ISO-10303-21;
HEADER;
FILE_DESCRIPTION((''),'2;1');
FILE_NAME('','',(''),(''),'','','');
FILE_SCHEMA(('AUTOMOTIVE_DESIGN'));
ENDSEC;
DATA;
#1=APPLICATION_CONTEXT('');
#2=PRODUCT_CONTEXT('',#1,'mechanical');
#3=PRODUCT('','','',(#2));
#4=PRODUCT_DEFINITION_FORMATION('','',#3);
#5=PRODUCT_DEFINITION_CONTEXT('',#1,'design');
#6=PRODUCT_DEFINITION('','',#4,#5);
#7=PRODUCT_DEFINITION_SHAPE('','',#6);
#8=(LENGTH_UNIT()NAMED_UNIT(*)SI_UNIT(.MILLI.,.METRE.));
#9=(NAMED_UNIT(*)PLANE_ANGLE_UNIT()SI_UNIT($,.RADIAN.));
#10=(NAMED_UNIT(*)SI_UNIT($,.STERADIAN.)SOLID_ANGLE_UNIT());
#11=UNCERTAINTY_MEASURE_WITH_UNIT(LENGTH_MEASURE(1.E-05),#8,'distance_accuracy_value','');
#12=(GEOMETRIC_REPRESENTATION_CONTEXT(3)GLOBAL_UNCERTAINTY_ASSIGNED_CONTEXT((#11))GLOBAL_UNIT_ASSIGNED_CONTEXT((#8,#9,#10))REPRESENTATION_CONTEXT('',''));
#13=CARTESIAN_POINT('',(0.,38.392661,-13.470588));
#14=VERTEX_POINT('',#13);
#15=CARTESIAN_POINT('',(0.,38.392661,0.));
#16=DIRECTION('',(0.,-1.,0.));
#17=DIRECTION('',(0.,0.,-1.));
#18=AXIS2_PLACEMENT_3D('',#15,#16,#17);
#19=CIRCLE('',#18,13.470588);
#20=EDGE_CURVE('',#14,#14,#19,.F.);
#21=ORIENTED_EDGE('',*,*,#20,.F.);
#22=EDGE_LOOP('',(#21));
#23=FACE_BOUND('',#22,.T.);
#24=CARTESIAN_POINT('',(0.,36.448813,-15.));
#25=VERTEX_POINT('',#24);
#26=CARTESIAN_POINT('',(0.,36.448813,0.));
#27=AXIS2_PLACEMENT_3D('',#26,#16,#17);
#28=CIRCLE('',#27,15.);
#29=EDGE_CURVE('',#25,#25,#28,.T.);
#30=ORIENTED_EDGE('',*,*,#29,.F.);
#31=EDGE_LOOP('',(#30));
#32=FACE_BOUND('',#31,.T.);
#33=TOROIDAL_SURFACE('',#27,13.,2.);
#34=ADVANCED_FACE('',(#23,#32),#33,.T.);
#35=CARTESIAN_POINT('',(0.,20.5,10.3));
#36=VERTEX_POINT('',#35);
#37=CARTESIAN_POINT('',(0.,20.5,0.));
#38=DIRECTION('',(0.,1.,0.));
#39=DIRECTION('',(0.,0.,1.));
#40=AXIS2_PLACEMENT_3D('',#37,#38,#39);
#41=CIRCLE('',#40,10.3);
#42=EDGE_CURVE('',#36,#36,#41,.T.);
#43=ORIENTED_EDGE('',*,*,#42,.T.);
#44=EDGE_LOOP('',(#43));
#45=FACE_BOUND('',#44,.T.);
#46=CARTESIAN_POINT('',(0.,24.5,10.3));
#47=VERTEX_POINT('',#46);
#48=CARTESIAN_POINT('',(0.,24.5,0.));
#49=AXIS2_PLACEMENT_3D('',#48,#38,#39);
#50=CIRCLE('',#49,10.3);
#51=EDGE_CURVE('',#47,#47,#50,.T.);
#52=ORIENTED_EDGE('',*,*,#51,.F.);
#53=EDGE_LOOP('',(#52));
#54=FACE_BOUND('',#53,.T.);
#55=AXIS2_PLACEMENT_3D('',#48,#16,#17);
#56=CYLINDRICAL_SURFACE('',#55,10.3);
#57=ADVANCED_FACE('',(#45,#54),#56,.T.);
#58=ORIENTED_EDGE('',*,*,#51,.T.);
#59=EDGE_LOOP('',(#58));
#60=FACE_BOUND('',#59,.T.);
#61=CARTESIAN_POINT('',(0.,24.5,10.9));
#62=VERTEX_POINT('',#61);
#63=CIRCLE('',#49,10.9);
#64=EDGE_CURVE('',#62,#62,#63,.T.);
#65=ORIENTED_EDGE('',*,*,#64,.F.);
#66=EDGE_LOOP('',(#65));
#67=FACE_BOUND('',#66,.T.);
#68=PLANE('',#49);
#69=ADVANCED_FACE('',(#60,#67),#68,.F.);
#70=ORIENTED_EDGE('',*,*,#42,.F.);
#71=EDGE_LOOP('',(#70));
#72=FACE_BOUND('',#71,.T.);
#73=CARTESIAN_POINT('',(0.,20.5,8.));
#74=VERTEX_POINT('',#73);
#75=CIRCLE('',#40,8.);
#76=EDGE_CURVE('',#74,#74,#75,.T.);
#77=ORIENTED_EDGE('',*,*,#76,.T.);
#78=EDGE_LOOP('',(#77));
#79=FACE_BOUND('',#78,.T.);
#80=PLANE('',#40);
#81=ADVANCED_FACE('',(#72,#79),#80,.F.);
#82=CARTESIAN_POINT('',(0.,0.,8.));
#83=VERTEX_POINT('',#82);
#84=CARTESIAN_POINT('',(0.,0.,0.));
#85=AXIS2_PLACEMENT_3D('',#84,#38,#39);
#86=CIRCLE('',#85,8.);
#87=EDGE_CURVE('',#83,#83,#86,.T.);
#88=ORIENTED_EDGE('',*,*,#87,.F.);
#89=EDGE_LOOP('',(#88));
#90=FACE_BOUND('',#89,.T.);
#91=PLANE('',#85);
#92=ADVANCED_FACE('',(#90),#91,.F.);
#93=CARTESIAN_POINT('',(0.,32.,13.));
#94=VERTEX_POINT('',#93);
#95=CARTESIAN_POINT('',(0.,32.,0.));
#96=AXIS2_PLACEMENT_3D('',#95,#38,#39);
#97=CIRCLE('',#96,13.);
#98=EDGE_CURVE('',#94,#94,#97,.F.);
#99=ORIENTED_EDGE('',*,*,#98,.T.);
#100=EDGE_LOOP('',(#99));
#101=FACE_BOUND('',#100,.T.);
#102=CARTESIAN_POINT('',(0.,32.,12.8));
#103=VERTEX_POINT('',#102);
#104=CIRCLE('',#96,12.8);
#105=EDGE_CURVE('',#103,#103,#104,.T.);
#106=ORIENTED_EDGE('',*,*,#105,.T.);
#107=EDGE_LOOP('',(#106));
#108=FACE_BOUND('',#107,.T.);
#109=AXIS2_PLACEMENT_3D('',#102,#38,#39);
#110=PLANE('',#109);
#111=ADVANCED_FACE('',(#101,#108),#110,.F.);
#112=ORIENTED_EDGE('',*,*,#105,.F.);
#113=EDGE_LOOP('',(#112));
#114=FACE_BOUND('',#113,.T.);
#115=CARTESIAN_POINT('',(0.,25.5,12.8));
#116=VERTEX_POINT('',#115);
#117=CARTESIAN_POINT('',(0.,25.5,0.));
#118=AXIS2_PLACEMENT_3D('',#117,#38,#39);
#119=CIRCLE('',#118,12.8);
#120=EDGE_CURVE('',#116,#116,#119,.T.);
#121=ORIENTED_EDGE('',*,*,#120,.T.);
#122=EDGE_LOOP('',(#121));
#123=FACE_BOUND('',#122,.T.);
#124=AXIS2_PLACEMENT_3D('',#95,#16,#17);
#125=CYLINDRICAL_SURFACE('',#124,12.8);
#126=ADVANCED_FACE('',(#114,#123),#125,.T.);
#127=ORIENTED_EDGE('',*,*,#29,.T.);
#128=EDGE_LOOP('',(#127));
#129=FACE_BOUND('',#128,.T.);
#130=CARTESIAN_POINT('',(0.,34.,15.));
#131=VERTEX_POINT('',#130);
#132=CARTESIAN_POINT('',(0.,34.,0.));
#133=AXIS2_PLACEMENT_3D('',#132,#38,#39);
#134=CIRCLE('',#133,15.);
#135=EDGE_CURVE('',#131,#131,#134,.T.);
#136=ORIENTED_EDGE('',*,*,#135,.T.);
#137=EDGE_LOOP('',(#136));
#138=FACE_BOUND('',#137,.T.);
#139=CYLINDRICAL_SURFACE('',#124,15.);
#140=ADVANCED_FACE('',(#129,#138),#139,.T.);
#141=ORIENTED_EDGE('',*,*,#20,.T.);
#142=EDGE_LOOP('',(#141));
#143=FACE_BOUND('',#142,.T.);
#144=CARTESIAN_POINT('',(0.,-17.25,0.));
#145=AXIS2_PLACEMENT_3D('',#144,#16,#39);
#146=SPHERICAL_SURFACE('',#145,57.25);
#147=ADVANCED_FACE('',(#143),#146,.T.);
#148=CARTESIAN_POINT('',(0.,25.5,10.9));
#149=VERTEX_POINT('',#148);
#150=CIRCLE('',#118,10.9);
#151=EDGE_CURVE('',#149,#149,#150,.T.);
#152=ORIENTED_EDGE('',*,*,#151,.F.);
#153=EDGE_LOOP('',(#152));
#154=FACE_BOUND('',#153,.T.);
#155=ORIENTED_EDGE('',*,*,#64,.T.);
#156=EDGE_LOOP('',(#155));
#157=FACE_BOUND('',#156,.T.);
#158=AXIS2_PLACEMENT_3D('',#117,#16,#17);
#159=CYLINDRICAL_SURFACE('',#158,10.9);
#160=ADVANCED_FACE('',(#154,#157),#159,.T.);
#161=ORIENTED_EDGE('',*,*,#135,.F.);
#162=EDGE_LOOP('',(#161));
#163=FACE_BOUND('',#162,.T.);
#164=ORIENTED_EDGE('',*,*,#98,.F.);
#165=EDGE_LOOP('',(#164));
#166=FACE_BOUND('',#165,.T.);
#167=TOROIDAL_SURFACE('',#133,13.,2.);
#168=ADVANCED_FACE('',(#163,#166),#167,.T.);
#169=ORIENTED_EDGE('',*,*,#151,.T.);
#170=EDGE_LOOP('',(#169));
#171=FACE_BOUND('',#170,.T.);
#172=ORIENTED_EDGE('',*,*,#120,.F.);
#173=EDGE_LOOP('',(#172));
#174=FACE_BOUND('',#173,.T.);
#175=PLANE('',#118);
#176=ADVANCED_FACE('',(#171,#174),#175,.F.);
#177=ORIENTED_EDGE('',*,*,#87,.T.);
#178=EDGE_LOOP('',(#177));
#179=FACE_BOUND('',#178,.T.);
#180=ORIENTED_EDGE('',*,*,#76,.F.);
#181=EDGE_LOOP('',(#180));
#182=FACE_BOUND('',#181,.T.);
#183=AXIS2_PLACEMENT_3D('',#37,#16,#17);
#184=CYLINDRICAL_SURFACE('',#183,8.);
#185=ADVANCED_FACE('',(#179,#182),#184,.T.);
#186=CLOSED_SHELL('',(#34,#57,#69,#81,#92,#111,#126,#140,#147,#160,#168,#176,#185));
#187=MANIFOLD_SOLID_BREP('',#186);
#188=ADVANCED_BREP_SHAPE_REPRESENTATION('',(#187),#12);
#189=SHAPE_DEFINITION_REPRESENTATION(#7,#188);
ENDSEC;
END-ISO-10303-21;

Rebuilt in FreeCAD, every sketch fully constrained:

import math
import FreeCAD as App
import Part
import Sketcher
from FreeCAD import Vector


def edges_at(feature, points):
    """Names of the edges that pass closest to the given points."""
    edges = feature.Shape.Edges
    near = lambda p: min(range(len(edges)), key=lambda i: edges[i].distToShape(Part.Vertex(*p))[0])
    return sorted({f"Edge{near(p) + 1}" for p in points})

doc = App.newDocument("Part")
params = doc.addObject("Spreadsheet::Sheet", "Params")
for row, (alias, value) in enumerate([
    ("sketch1_diameter", "16 mm"),
    ("pad1_length", "20.5 mm"),
    ("sketch2_diameter", "20.6 mm"),
    ("pad2_length", "4 mm"),
    ("sketch3_diameter", "21.8 mm"),
    ("pad3_length", "1 mm"),
    ("sketch4_diameter", "25.6 mm"),
    ("pad4_length", "6.5 mm"),
    ("sketch5_width", "8 mm"),
    ("sketch5_width2", "6 mm"),
    ("sketch5_height", "15 mm"),
    ("revolution_angle", "360 deg"),
    ("fillet_radius", "2 mm"),
], start=1):
    params.set(f"A{row}", alias)
    params.set(f"B{row}", "=" + value)
    params.setAlias(f"B{row}", alias)

body = doc.addObject("PartDesign::Body", "Body")

sketch1 = doc.addObject("Sketcher::SketchObject", "Sketch")
body.addObject(sketch1)
sketch1.AttachmentSupport = (doc.XZ_Plane, [""])
sketch1.MapMode = "FlatFace"
sketch1.addGeometry(Part.Circle(Vector(0, 0, 0), Vector(0, 0, 1), 8), False)
sketch1.addConstraint(Sketcher.Constraint("Coincident", 0, 3, -1, 1))
sketch1.addConstraint(Sketcher.Constraint("Diameter", 0, 16.0))
sketch1.setExpression("Constraints[1]", "Params.sketch1_diameter")
pad1 = doc.addObject("PartDesign::Pad", "Pad")
body.addObject(pad1)
pad1.Profile = sketch1
pad1.setExpression("Length", "Params.pad1_length")
pad1.Reversed = True

sketch2 = doc.addObject("Sketcher::SketchObject", "Sketch001")
body.addObject(sketch2)
sketch2.AttachmentSupport = (doc.XZ_Plane, [""])
sketch2.MapMode = "FlatFace"
sketch2.AttachmentOffset = App.Placement(Vector(0, 0, -20.5), App.Rotation())
sketch2.addGeometry(Part.Circle(Vector(0, 0, 0), Vector(0, 0, 1), 10.3), False)
sketch2.addConstraint(Sketcher.Constraint("Coincident", 0, 3, -1, 1))
sketch2.addConstraint(Sketcher.Constraint("Diameter", 0, 20.6))
sketch2.setExpression("Constraints[1]", "Params.sketch2_diameter")
pad2 = doc.addObject("PartDesign::Pad", "Pad001")
body.addObject(pad2)
pad2.Profile = sketch2
pad2.setExpression("Length", "Params.pad2_length")
pad2.Reversed = True

sketch3 = doc.addObject("Sketcher::SketchObject", "Sketch002")
body.addObject(sketch3)
sketch3.AttachmentSupport = (doc.XZ_Plane, [""])
sketch3.MapMode = "FlatFace"
sketch3.AttachmentOffset = App.Placement(Vector(0, 0, -24.5), App.Rotation())
sketch3.addGeometry(Part.Circle(Vector(0, 0, 0), Vector(0, 0, 1), 10.9), False)
sketch3.addConstraint(Sketcher.Constraint("Coincident", 0, 3, -1, 1))
sketch3.addConstraint(Sketcher.Constraint("Diameter", 0, 21.8))
sketch3.setExpression("Constraints[1]", "Params.sketch3_diameter")
pad3 = doc.addObject("PartDesign::Pad", "Pad002")
body.addObject(pad3)
pad3.Profile = sketch3
pad3.setExpression("Length", "Params.pad3_length")
pad3.Reversed = True

sketch4 = doc.addObject("Sketcher::SketchObject", "Sketch003")
body.addObject(sketch4)
sketch4.AttachmentSupport = (doc.XZ_Plane, [""])
sketch4.MapMode = "FlatFace"
sketch4.AttachmentOffset = App.Placement(Vector(0, 0, -25.5), App.Rotation())
sketch4.addGeometry(Part.Circle(Vector(0, 0, 0), Vector(0, 0, 1), 12.8), False)
sketch4.addConstraint(Sketcher.Constraint("Coincident", 0, 3, -1, 1))
sketch4.addConstraint(Sketcher.Constraint("Diameter", 0, 25.6))
sketch4.setExpression("Constraints[1]", "Params.sketch4_diameter")
pad4 = doc.addObject("PartDesign::Pad", "Pad003")
body.addObject(pad4)
pad4.Profile = sketch4
pad4.setExpression("Length", "Params.pad4_length")
pad4.Reversed = True

sketch5 = doc.addObject("Sketcher::SketchObject", "Sketch004")
body.addObject(sketch5)
sketch5.AttachmentSupport = (doc.YZ_Plane, [""])
sketch5.MapMode = "FlatFace"
sketch5.addGeometry(Part.LineSegment(Vector(32, 0, 0), Vector(40, 0, 0)), False)
sketch5.addGeometry(Part.ArcOfCircle(Part.Circle(Vector(-17.25, 0, 0), Vector(0, 0, 1), 57.25), math.radians(0), math.radians(15.189287)), False)
sketch5.addGeometry(Part.LineSegment(Vector(38, 15, 0), Vector(32, 15, 0)), False)
sketch5.addGeometry(Part.LineSegment(Vector(32, 15, 0), Vector(32, 0, 0)), False)
sketch5.addConstraint(Sketcher.Constraint("Coincident", 0, 2, 1, 1))
sketch5.addConstraint(Sketcher.Constraint("Coincident", 1, 2, 2, 1))
sketch5.addConstraint(Sketcher.Constraint("Coincident", 2, 2, 3, 1))
sketch5.addConstraint(Sketcher.Constraint("Coincident", 3, 2, 0, 1))
sketch5.addConstraint(Sketcher.Constraint("Horizontal", 0))
sketch5.addConstraint(Sketcher.Constraint("Horizontal", 2))
sketch5.addConstraint(Sketcher.Constraint("Vertical", 3))
sketch5.addConstraint(Sketcher.Constraint("PointOnObject", 1, 3, -1))
sketch5.addConstraint(Sketcher.Constraint("PointOnObject", 0, 2, -1))
sketch5.addConstraint(Sketcher.Constraint("DistanceX", 0, 1, 0, 2, 8.0))
sketch5.addConstraint(Sketcher.Constraint("DistanceX", 2, 2, 2, 1, 6.0))
sketch5.addConstraint(Sketcher.Constraint("DistanceY", 3, 2, 3, 1, 15.0))
sketch5.addConstraint(Sketcher.Constraint("DistanceX", -1, 1, 0, 2, 40.0))
sketch5.setExpression("Constraints[9]", "Params.sketch5_width")
sketch5.setExpression("Constraints[10]", "Params.sketch5_width2")
sketch5.setExpression("Constraints[11]", "Params.sketch5_height")
revolution = doc.addObject("PartDesign::Revolution", "Revolution")
body.addObject(revolution)
revolution.Profile = sketch5
revolution.ReferenceAxis = (sketch5, ["H_Axis"])
revolution.setExpression("Angle", "Params.revolution_angle")
doc.recompute()

fillet = doc.addObject("PartDesign::Fillet", "Fillet")
body.addObject(fillet)
fillet.Base = (revolution, edges_at(revolution, [(0, 38, -15), (0, 32, -15)]))
fillet.setExpression("Radius", "Params.fillet_radius")

doc.recompute()
